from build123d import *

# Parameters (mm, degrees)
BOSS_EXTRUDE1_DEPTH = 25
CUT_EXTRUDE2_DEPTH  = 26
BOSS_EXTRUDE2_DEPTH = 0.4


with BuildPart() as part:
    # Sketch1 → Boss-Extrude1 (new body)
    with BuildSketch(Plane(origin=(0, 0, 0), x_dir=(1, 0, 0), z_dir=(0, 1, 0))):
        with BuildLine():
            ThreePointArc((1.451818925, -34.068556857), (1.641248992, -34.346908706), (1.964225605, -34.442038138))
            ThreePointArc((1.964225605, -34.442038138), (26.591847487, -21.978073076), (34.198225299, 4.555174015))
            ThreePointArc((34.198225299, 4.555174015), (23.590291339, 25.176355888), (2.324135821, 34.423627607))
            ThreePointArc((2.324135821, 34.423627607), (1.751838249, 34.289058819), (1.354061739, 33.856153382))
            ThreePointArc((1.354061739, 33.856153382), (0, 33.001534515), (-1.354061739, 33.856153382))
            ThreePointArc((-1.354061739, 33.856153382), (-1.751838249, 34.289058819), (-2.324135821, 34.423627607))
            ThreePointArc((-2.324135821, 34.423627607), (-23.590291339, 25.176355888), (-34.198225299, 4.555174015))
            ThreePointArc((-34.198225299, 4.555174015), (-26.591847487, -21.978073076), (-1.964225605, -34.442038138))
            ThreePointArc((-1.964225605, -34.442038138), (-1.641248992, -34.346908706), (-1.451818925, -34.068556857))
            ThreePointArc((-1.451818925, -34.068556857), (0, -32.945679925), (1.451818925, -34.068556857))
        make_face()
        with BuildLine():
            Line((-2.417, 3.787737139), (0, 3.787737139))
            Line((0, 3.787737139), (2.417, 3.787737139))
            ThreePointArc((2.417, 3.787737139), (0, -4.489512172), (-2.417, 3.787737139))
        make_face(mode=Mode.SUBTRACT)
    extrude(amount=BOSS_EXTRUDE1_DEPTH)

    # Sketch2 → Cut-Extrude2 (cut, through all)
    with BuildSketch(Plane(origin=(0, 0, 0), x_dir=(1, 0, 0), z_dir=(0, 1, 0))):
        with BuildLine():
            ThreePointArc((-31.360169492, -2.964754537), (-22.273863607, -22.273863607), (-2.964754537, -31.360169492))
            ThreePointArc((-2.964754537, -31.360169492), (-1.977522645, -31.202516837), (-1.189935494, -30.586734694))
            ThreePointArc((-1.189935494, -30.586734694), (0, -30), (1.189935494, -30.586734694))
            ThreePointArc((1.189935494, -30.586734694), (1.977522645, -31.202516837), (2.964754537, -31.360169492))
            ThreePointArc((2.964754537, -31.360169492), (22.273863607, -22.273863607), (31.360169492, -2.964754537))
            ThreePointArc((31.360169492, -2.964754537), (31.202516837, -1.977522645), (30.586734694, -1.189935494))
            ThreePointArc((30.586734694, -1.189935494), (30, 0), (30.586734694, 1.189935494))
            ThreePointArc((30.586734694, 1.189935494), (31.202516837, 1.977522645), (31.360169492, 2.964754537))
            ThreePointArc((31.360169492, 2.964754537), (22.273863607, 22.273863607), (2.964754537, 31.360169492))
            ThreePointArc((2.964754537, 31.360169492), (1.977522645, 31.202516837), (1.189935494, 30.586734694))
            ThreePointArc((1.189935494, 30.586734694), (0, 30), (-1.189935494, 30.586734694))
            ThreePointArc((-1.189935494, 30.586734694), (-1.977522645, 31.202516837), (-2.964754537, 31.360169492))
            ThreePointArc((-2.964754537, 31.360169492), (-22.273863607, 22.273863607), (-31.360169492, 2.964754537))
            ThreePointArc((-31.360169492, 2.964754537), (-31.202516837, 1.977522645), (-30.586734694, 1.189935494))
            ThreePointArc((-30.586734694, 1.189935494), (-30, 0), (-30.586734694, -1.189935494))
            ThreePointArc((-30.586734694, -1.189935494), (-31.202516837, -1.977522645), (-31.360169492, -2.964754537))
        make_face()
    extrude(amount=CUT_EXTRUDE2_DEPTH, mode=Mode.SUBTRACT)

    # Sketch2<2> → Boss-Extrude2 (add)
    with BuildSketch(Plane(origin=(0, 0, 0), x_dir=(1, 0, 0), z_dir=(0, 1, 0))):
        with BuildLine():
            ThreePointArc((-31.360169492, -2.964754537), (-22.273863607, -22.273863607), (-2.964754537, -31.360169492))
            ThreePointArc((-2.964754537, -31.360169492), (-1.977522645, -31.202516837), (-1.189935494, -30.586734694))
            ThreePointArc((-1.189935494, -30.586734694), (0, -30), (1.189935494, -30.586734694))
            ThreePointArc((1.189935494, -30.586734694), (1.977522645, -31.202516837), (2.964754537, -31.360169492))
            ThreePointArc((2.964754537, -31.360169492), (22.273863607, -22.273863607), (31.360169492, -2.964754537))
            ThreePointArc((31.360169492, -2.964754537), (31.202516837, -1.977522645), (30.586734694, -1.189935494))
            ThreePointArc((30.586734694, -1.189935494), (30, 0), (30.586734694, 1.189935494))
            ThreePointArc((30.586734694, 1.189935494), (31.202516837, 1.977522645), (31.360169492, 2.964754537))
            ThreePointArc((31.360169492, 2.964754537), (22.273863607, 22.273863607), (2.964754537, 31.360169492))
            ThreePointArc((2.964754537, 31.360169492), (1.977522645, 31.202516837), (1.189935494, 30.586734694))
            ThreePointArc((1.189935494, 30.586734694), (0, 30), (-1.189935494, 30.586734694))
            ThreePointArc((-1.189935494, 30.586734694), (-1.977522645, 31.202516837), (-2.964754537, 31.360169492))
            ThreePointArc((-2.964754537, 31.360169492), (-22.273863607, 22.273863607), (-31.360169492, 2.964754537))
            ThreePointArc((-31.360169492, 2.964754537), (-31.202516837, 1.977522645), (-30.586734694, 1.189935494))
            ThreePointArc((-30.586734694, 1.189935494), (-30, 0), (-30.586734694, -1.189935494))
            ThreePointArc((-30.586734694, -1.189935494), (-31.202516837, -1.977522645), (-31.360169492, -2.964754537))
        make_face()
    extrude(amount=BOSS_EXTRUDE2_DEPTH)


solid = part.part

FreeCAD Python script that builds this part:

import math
import FreeCAD as App
import Part
import Sketcher

V = App.Vector
Q = App.Units.Quantity

doc = App.newDocument("Part")
body = doc.addObject("PartDesign::Body", "Body")

# Sketch on XZ plane
sketch1 = body.newObject("Sketcher::SketchObject", "Sketch")
sketch1.AttachmentSupport = (doc.getObject("XZ_Plane"), [""])
sketch1.MapMode = "FlatFace"
sketch1.addGeometry([
    Part.ArcOfCircle(Part.Circle(V(1.9, 33.9, 0), V(0, 0, 1), 0.5), math.radians(87), math.radians(165)),  # 0
    Part.ArcOfCircle(Part.Circle(V(0, 0, 0), V(0, 0, 1), 34.5), math.radians(-8), math.radians(87)),  # 1
    Part.ArcOfCircle(Part.Circle(V(0, 0, 0), V(0, 0, 1), 34.5), math.radians(-86), math.radians(-8)),  # 2
    Part.ArcOfCircle(Part.Circle(V(2.3, -33.4, 0), V(0, 0, 1), 1), math.radians(-155), math.radians(-86)),  # 3
    Part.ArcOfCircle(Part.Circle(V(0, -34.5, 0), V(0, 0, 1), 1.5), math.radians(25), math.radians(155)),  # 4
    Part.ArcOfCircle(Part.Circle(V(-2.3, -33.4, 0), V(0, 0, 1), 1), math.radians(-94), math.radians(-25)),  # 5
    Part.ArcOfCircle(Part.Circle(V(0, 0, 0), V(0, 0, 1), 34.5), math.radians(-172), math.radians(-94)),  # 6
    Part.ArcOfCircle(Part.Circle(V(0, 0, 0), V(0, 0, 1), 34.5), math.radians(93), math.radians(188)),  # 7
    Part.ArcOfCircle(Part.Circle(V(-1.9, 33.9, 0), V(0, 0, 1), 0.5), math.radians(15), math.radians(93)),  # 8
    Part.ArcOfCircle(Part.Circle(V(0, 34.4, 0), V(0, 0, 1), 1.5), math.radians(-165), math.radians(-15)),  # 9
    Part.ArcOfCircle(Part.Circle(V(0, 0, 0), V(0, 0, 1), 4.5), math.radians(-57), math.radians(237)),  # 10
    Part.LineSegment(V(-2.4, -3.8, 0), V(2.4, -3.8, 0)),  # 11
], False)
sketch1.addConstraint([
    Sketcher.Constraint("Tangent", 0, 1, 1, 2),
    Sketcher.Constraint("Tangent", 1, 1, 2, 2),
    Sketcher.Constraint("Tangent", 2, 1, 3, 2),
    Sketcher.Constraint("Tangent", 3, 1, 4, 1),
    Sketcher.Constraint("Tangent", 4, 2, 5, 2),
    Sketcher.Constraint("Tangent", 5, 1, 6, 2),
    Sketcher.Constraint("Tangent", 6, 1, 7, 2),
    Sketcher.Constraint("Tangent", 7, 1, 8, 2),
    Sketcher.Constraint("Tangent", 8, 1, 9, 1),
    Sketcher.Constraint("Tangent", 9, 2, 0, 2),
    Sketcher.Constraint("Coincident", 10, 1, 11, 2),
    Sketcher.Constraint("Coincident", 11, 1, 10, 2),
    Sketcher.Constraint("Horizontal", 11),
    Sketcher.Constraint("Coincident", 6, 3, 1, 3),
    Sketcher.Constraint("Coincident", 10, 3, 1, 3),
    Sketcher.Constraint("Equal", 1, 2),
    Sketcher.Constraint("Equal", 3, 5),
    Sketcher.Constraint("Equal", 2, 6),
    Sketcher.Constraint("Equal", 6, 7),
    Sketcher.Constraint("Equal", 0, 8),
    Sketcher.Constraint("Equal", 4, 9),
    Sketcher.Constraint("Symmetric", 3, 3, 5, 3, -2),
    Sketcher.Constraint("PointOnObject", 9, 3, -2),
    Sketcher.Constraint("Horizontal", 1, 1, 6, 1),
    Sketcher.Constraint("Radius", 3, Q("1 mm")),
    Sketcher.Constraint("Radius", 0, Q("0.5 mm")),
    Sketcher.Constraint("Radius", 1, Q("34.5 mm")),
    Sketcher.Constraint("Radius", 4, Q("1.5 mm")),
    Sketcher.Constraint("DistanceX", 11, 1, 11, 2, Q("4.834 mm")),
    Sketcher.Constraint("DistanceY", 1, 3, -1, 1, Q("0.002001 mm")),
    Sketcher.Constraint("Radius", 10, Q("4.491513 mm")),
    Sketcher.Constraint("DistanceY", 3, 3, -1, 1, Q("33.425899 mm")),
    Sketcher.Constraint("DistanceX", -1, 1, 0, 3, Q("1.935759 mm")),
    Sketcher.Constraint("DistanceX", -1, 1, 1, 1, Q("34.198225 mm")),
])
pad1 = body.newObject("PartDesign::Pad", "Pad")
pad1.Profile = sketch1
pad1.Length = 25
pad1.Reversed = True

# Sketch on XZ plane
sketch2 = body.newObject("Sketcher::SketchObject", "Sketch001")
sketch2.AttachmentSupport = (doc.getObject("XZ_Plane"), [""])
sketch2.MapMode = "FlatFace"
sketch2.addGeometry([
    Part.ArcOfCircle(Part.Circle(V(0, 0, 0), V(0, 0, 1), 31.5), math.radians(95), math.radians(175)),  # 0
    Part.ArcOfCircle(Part.Circle(V(-2.8, 29.4, 0), V(0, 0, 1), 2), math.radians(38), math.radians(95)),  # 1
    Part.ArcOfCircle(Part.Circle(V(0, 31.5, 0), V(0, 0, 1), 1.5), math.radians(-142), math.radians(-38)),  # 2
    Part.ArcOfCircle(Part.Circle(V(2.8, 29.4, 0), V(0, 0, 1), 2), math.radians(85), math.radians(142)),  # 3
    Part.ArcOfCircle(Part.Circle(V(0, 0, 0), V(0, 0, 1), 31.5), math.radians(5), math.radians(85)),  # 4
    Part.ArcOfCircle(Part.Circle(V(29.4, 2.8, 0), V(0, 0, 1), 2), math.radians(-52), math.radians(5)),  # 5
    Part.ArcOfCircle(Part.Circle(V(31.5, 0, 0), V(0, 0, 1), 1.5), math.radians(128), math.radians(232)),  # 6
    Part.ArcOfCircle(Part.Circle(V(29.4, -2.8, 0), V(0, 0, 1), 2), math.radians(-5), math.radians(52)),  # 7
    Part.ArcOfCircle(Part.Circle(V(0, 0, 0), V(0, 0, 1), 31.5), math.radians(-85), math.radians(-5)),  # 8
    Part.ArcOfCircle(Part.Circle(V(2.8, -29.4, 0), V(0, 0, 1), 2), math.radians(-142), math.radians(-85)),  # 9
    Part.ArcOfCircle(Part.Circle(V(0, -31.5, 0), V(0, 0, 1), 1.5), math.radians(38), math.radians(142)),  # 10
    Part.ArcOfCircle(Part.Circle(V(-2.8, -29.4, 0), V(0, 0, 1), 2), math.radians(-95), math.radians(-38)),  # 11
    Part.ArcOfCircle(Part.Circle(V(0, 0, 0), V(0, 0, 1), 31.5), math.radians(-175), math.radians(-95)),  # 12
    Part.ArcOfCircle(Part.Circle(V(-29.4, -2.8, 0), V(0, 0, 1), 2), math.radians(128), math.radians(185)),  # 13
    Part.ArcOfCircle(Part.Circle(V(-31.5, 0, 0), V(0, 0, 1), 1.5), math.radians(-52), math.radians(52)),  # 14
    Part.ArcOfCircle(Part.Circle(V(-29.4, 2.8, 0), V(0, 0, 1), 2), math.radians(175), math.radians(232)),  # 15
], False)
sketch2.addConstraint([
    Sketcher.Constraint("Tangent", 0, 1, 1, 2),
    Sketcher.Constraint("Tangent", 1, 1, 2, 1),
    Sketcher.Constraint("Tangent", 2, 2, 3, 2),
    Sketcher.Constraint("Tangent", 3, 1, 4, 2),
    Sketcher.Constraint("Tangent", 4, 1, 5, 2),
    Sketcher.Constraint("Tangent", 5, 1, 6, 1),
    Sketcher.Constraint("Tangent", 6, 2, 7, 2),
    Sketcher.Constraint("Tangent", 7, 1, 8, 2),
    Sketcher.Constraint("Tangent", 8, 1, 9, 2),
    Sketcher.Constraint("Tangent", 9, 1, 10, 1),
    Sketcher.Constraint("Tangent", 10, 2, 11, 2),
    Sketcher.Constraint("Tangent", 11, 1, 12, 2),
    Sketcher.Constraint("Tangent", 12, 1, 13, 2),
    Sketcher.Constraint("Tangent", 13, 1, 14, 1),
    Sketcher.Constraint("Tangent", 14, 2, 15, 2),
    Sketcher.Constraint("Tangent", 15, 1, 0, 2),
    Sketcher.Constraint("Coincident", 0, 3, -1, 1),
    Sketcher.Constraint("Coincident", 4, 3, -1, 1),
    Sketcher.Constraint("Coincident", 8, 3, -1, 1),
    Sketcher.Constraint("Coincident", 12, 3, -1, 1),
    Sketcher.Constraint("Equal", 1, 3),
    Sketcher.Constraint("Equal", 0, 4),
    Sketcher.Constraint("Equal", 3, 5),
    Sketcher.Constraint("Equal", 2, 6),
    Sketcher.Constraint("Equal", 5, 7),
    Sketcher.Constraint("Equal", 4, 8),
    Sketcher.Constraint("Equal", 7, 9),
    Sketcher.Constraint("Equal", 6, 10),
    Sketcher.Constraint("Equal", 9, 11),
    Sketcher.Constraint("Equal", 8, 12),
    Sketcher.Constraint("Equal", 11, 13),
    Sketcher.Constraint("Equal", 10, 14),
    Sketcher.Constraint("Equal", 13, 15),
    Sketcher.Constraint("Symmetric", 2, 3, 10, 3, -1, 1),
    Sketcher.Constraint("Symmetric", 6, 3, 14, 3, -1, 1),
    Sketcher.Constraint("PointOnObject", 2, 3, -2),
    Sketcher.Constraint("PointOnObject", 6, 3, -1),
    Sketcher.Constraint("Radius", 1, Q("2 mm")),
    Sketcher.Constraint("Radius", 0, Q("31.5 mm")),
    Sketcher.Constraint("Radius", 2, Q("1.5 mm")),
    Sketcher.Constraint("DistanceY", -1, 1, 2, 3, Q("31.5 mm")),
    Sketcher.Constraint("DistanceX", -1, 1, 6, 3, Q("31.5 mm")),
])
pocket1 = body.newObject("PartDesign::Pocket", "Pocket")
pocket1.Profile = sketch2
pocket1.Type = "ThroughAll"

# Sketch on XZ plane
sketch3 = body.newObject("Sketcher::SketchObject", "Sketch002")
sketch3.AttachmentSupport = (doc.getObject("XZ_Plane"), [""])
sketch3.MapMode = "FlatFace"
sketch3.addGeometry([
    Part.ArcOfCircle(Part.Circle(V(0, 0, 0), V(0, 0, 1), 31.5), math.radians(95), math.radians(175)),  # 0
    Part.ArcOfCircle(Part.Circle(V(-2.8, 29.4, 0), V(0, 0, 1), 2), math.radians(38), math.radians(95)),  # 1
    Part.ArcOfCircle(Part.Circle(V(0, 31.5, 0), V(0, 0, 1), 1.5), math.radians(-142), math.radians(-38)),  # 2
    Part.ArcOfCircle(Part.Circle(V(2.8, 29.4, 0), V(0, 0, 1), 2), math.radians(85), math.radians(142)),  # 3
    Part.ArcOfCircle(Part.Circle(V(0, 0, 0), V(0, 0, 1), 31.5), math.radians(5), math.radians(85)),  # 4
    Part.ArcOfCircle(Part.Circle(V(29.4, 2.8, 0), V(0, 0, 1), 2), math.radians(-52), math.radians(5)),  # 5
    Part.ArcOfCircle(Part.Circle(V(31.5, 0, 0), V(0, 0, 1), 1.5), math.radians(128), math.radians(232)),  # 6
    Part.ArcOfCircle(Part.Circle(V(29.4, -2.8, 0), V(0, 0, 1), 2), math.radians(-5), math.radians(52)),  # 7
    Part.ArcOfCircle(Part.Circle(V(0, 0, 0), V(0, 0, 1), 31.5), math.radians(-85), math.radians(-5)),  # 8
    Part.ArcOfCircle(Part.Circle(V(2.8, -29.4, 0), V(0, 0, 1), 2), math.radians(-142), math.radians(-85)),  # 9
    Part.ArcOfCircle(Part.Circle(V(0, -31.5, 0), V(0, 0, 1), 1.5), math.radians(38), math.radians(142)),  # 10
    Part.ArcOfCircle(Part.Circle(V(-2.8, -29.4, 0), V(0, 0, 1), 2), math.radians(-95), math.radians(-38)),  # 11
    Part.ArcOfCircle(Part.Circle(V(0, 0, 0), V(0, 0, 1), 31.5), math.radians(-175), math.radians(-95)),  # 12
    Part.ArcOfCircle(Part.Circle(V(-29.4, -2.8, 0), V(0, 0, 1), 2), math.radians(128), math.radians(185)),  # 13
    Part.ArcOfCircle(Part.Circle(V(-31.5, 0, 0), V(0, 0, 1), 1.5), math.radians(-52), math.radians(52)),  # 14
    Part.ArcOfCircle(Part.Circle(V(-29.4, 2.8, 0), V(0, 0, 1), 2), math.radians(175), math.radians(232)),  # 15
], False)
sketch3.addConstraint([
    Sketcher.Constraint("Tangent", 0, 1, 1, 2),
    Sketcher.Constraint("Tangent", 1, 1, 2, 1),
    Sketcher.Constraint("Tangent", 2, 2, 3, 2),
    Sketcher.Constraint("Tangent", 3, 1, 4, 2),
    Sketcher.Constraint("Tangent", 4, 1, 5, 2),
    Sketcher.Constraint("Tangent", 5, 1, 6, 1),
    Sketcher.Constraint("Tangent", 6, 2, 7, 2),
    Sketcher.Constraint("Tangent", 7, 1, 8, 2),
    Sketcher.Constraint("Tangent", 8, 1, 9, 2),
    Sketcher.Constraint("Tangent", 9, 1, 10, 1),
    Sketcher.Constraint("Tangent", 10, 2, 11, 2),
    Sketcher.Constraint("Tangent", 11, 1, 12, 2),
    Sketcher.Constraint("Tangent", 12, 1, 13, 2),
    Sketcher.Constraint("Tangent", 13, 1, 14, 1),
    Sketcher.Constraint("Tangent", 14, 2, 15, 2),
    Sketcher.Constraint("Tangent", 15, 1, 0, 2),
    Sketcher.Constraint("Coincident", 0, 3, -1, 1),
    Sketcher.Constraint("Coincident", 4, 3, -1, 1),
    Sketcher.Constraint("Coincident", 8, 3, -1, 1),
    Sketcher.Constraint("Coincident", 12, 3, -1, 1),
    Sketcher.Constraint("Equal", 1, 3),
    Sketcher.Constraint("Equal", 0, 4),
    Sketcher.Constraint("Equal", 3, 5),
    Sketcher.Constraint("Equal", 2, 6),
    Sketcher.Constraint("Equal", 5, 7),
    Sketcher.Constraint("Equal", 4, 8),
    Sketcher.Constraint("Equal", 7, 9),
    Sketcher.Constraint("Equal", 6, 10),
    Sketcher.Constraint("Equal", 9, 11),
    Sketcher.Constraint("Equal", 8, 12),
    Sketcher.Constraint("Equal", 11, 13),
    Sketcher.Constraint("Equal", 10, 14),
    Sketcher.Constraint("Equal", 13, 15),
    Sketcher.Constraint("Symmetric", 2, 3, 10, 3, -1, 1),
    Sketcher.Constraint("Symmetric", 6, 3, 14, 3, -1, 1),
    Sketcher.Constraint("PointOnObject", 2, 3, -2),
    Sketcher.Constraint("PointOnObject", 6, 3, -1),
    Sketcher.Constraint("Radius", 1, Q("2 mm")),
    Sketcher.Constraint("Radius", 0, Q("31.5 mm")),
    Sketcher.Constraint("Radius", 2, Q("1.5 mm")),
    Sketcher.Constraint("DistanceY", -1, 1, 2, 3, Q("31.5 mm")),
    Sketcher.Constraint("DistanceX", -1, 1, 6, 3, Q("31.5 mm")),
])
pad2 = body.newObject("PartDesign::Pad", "Pad001")
pad2.Profile = sketch3
pad2.Length = 0.4
pad2.Reversed = True

doc.recompute()
